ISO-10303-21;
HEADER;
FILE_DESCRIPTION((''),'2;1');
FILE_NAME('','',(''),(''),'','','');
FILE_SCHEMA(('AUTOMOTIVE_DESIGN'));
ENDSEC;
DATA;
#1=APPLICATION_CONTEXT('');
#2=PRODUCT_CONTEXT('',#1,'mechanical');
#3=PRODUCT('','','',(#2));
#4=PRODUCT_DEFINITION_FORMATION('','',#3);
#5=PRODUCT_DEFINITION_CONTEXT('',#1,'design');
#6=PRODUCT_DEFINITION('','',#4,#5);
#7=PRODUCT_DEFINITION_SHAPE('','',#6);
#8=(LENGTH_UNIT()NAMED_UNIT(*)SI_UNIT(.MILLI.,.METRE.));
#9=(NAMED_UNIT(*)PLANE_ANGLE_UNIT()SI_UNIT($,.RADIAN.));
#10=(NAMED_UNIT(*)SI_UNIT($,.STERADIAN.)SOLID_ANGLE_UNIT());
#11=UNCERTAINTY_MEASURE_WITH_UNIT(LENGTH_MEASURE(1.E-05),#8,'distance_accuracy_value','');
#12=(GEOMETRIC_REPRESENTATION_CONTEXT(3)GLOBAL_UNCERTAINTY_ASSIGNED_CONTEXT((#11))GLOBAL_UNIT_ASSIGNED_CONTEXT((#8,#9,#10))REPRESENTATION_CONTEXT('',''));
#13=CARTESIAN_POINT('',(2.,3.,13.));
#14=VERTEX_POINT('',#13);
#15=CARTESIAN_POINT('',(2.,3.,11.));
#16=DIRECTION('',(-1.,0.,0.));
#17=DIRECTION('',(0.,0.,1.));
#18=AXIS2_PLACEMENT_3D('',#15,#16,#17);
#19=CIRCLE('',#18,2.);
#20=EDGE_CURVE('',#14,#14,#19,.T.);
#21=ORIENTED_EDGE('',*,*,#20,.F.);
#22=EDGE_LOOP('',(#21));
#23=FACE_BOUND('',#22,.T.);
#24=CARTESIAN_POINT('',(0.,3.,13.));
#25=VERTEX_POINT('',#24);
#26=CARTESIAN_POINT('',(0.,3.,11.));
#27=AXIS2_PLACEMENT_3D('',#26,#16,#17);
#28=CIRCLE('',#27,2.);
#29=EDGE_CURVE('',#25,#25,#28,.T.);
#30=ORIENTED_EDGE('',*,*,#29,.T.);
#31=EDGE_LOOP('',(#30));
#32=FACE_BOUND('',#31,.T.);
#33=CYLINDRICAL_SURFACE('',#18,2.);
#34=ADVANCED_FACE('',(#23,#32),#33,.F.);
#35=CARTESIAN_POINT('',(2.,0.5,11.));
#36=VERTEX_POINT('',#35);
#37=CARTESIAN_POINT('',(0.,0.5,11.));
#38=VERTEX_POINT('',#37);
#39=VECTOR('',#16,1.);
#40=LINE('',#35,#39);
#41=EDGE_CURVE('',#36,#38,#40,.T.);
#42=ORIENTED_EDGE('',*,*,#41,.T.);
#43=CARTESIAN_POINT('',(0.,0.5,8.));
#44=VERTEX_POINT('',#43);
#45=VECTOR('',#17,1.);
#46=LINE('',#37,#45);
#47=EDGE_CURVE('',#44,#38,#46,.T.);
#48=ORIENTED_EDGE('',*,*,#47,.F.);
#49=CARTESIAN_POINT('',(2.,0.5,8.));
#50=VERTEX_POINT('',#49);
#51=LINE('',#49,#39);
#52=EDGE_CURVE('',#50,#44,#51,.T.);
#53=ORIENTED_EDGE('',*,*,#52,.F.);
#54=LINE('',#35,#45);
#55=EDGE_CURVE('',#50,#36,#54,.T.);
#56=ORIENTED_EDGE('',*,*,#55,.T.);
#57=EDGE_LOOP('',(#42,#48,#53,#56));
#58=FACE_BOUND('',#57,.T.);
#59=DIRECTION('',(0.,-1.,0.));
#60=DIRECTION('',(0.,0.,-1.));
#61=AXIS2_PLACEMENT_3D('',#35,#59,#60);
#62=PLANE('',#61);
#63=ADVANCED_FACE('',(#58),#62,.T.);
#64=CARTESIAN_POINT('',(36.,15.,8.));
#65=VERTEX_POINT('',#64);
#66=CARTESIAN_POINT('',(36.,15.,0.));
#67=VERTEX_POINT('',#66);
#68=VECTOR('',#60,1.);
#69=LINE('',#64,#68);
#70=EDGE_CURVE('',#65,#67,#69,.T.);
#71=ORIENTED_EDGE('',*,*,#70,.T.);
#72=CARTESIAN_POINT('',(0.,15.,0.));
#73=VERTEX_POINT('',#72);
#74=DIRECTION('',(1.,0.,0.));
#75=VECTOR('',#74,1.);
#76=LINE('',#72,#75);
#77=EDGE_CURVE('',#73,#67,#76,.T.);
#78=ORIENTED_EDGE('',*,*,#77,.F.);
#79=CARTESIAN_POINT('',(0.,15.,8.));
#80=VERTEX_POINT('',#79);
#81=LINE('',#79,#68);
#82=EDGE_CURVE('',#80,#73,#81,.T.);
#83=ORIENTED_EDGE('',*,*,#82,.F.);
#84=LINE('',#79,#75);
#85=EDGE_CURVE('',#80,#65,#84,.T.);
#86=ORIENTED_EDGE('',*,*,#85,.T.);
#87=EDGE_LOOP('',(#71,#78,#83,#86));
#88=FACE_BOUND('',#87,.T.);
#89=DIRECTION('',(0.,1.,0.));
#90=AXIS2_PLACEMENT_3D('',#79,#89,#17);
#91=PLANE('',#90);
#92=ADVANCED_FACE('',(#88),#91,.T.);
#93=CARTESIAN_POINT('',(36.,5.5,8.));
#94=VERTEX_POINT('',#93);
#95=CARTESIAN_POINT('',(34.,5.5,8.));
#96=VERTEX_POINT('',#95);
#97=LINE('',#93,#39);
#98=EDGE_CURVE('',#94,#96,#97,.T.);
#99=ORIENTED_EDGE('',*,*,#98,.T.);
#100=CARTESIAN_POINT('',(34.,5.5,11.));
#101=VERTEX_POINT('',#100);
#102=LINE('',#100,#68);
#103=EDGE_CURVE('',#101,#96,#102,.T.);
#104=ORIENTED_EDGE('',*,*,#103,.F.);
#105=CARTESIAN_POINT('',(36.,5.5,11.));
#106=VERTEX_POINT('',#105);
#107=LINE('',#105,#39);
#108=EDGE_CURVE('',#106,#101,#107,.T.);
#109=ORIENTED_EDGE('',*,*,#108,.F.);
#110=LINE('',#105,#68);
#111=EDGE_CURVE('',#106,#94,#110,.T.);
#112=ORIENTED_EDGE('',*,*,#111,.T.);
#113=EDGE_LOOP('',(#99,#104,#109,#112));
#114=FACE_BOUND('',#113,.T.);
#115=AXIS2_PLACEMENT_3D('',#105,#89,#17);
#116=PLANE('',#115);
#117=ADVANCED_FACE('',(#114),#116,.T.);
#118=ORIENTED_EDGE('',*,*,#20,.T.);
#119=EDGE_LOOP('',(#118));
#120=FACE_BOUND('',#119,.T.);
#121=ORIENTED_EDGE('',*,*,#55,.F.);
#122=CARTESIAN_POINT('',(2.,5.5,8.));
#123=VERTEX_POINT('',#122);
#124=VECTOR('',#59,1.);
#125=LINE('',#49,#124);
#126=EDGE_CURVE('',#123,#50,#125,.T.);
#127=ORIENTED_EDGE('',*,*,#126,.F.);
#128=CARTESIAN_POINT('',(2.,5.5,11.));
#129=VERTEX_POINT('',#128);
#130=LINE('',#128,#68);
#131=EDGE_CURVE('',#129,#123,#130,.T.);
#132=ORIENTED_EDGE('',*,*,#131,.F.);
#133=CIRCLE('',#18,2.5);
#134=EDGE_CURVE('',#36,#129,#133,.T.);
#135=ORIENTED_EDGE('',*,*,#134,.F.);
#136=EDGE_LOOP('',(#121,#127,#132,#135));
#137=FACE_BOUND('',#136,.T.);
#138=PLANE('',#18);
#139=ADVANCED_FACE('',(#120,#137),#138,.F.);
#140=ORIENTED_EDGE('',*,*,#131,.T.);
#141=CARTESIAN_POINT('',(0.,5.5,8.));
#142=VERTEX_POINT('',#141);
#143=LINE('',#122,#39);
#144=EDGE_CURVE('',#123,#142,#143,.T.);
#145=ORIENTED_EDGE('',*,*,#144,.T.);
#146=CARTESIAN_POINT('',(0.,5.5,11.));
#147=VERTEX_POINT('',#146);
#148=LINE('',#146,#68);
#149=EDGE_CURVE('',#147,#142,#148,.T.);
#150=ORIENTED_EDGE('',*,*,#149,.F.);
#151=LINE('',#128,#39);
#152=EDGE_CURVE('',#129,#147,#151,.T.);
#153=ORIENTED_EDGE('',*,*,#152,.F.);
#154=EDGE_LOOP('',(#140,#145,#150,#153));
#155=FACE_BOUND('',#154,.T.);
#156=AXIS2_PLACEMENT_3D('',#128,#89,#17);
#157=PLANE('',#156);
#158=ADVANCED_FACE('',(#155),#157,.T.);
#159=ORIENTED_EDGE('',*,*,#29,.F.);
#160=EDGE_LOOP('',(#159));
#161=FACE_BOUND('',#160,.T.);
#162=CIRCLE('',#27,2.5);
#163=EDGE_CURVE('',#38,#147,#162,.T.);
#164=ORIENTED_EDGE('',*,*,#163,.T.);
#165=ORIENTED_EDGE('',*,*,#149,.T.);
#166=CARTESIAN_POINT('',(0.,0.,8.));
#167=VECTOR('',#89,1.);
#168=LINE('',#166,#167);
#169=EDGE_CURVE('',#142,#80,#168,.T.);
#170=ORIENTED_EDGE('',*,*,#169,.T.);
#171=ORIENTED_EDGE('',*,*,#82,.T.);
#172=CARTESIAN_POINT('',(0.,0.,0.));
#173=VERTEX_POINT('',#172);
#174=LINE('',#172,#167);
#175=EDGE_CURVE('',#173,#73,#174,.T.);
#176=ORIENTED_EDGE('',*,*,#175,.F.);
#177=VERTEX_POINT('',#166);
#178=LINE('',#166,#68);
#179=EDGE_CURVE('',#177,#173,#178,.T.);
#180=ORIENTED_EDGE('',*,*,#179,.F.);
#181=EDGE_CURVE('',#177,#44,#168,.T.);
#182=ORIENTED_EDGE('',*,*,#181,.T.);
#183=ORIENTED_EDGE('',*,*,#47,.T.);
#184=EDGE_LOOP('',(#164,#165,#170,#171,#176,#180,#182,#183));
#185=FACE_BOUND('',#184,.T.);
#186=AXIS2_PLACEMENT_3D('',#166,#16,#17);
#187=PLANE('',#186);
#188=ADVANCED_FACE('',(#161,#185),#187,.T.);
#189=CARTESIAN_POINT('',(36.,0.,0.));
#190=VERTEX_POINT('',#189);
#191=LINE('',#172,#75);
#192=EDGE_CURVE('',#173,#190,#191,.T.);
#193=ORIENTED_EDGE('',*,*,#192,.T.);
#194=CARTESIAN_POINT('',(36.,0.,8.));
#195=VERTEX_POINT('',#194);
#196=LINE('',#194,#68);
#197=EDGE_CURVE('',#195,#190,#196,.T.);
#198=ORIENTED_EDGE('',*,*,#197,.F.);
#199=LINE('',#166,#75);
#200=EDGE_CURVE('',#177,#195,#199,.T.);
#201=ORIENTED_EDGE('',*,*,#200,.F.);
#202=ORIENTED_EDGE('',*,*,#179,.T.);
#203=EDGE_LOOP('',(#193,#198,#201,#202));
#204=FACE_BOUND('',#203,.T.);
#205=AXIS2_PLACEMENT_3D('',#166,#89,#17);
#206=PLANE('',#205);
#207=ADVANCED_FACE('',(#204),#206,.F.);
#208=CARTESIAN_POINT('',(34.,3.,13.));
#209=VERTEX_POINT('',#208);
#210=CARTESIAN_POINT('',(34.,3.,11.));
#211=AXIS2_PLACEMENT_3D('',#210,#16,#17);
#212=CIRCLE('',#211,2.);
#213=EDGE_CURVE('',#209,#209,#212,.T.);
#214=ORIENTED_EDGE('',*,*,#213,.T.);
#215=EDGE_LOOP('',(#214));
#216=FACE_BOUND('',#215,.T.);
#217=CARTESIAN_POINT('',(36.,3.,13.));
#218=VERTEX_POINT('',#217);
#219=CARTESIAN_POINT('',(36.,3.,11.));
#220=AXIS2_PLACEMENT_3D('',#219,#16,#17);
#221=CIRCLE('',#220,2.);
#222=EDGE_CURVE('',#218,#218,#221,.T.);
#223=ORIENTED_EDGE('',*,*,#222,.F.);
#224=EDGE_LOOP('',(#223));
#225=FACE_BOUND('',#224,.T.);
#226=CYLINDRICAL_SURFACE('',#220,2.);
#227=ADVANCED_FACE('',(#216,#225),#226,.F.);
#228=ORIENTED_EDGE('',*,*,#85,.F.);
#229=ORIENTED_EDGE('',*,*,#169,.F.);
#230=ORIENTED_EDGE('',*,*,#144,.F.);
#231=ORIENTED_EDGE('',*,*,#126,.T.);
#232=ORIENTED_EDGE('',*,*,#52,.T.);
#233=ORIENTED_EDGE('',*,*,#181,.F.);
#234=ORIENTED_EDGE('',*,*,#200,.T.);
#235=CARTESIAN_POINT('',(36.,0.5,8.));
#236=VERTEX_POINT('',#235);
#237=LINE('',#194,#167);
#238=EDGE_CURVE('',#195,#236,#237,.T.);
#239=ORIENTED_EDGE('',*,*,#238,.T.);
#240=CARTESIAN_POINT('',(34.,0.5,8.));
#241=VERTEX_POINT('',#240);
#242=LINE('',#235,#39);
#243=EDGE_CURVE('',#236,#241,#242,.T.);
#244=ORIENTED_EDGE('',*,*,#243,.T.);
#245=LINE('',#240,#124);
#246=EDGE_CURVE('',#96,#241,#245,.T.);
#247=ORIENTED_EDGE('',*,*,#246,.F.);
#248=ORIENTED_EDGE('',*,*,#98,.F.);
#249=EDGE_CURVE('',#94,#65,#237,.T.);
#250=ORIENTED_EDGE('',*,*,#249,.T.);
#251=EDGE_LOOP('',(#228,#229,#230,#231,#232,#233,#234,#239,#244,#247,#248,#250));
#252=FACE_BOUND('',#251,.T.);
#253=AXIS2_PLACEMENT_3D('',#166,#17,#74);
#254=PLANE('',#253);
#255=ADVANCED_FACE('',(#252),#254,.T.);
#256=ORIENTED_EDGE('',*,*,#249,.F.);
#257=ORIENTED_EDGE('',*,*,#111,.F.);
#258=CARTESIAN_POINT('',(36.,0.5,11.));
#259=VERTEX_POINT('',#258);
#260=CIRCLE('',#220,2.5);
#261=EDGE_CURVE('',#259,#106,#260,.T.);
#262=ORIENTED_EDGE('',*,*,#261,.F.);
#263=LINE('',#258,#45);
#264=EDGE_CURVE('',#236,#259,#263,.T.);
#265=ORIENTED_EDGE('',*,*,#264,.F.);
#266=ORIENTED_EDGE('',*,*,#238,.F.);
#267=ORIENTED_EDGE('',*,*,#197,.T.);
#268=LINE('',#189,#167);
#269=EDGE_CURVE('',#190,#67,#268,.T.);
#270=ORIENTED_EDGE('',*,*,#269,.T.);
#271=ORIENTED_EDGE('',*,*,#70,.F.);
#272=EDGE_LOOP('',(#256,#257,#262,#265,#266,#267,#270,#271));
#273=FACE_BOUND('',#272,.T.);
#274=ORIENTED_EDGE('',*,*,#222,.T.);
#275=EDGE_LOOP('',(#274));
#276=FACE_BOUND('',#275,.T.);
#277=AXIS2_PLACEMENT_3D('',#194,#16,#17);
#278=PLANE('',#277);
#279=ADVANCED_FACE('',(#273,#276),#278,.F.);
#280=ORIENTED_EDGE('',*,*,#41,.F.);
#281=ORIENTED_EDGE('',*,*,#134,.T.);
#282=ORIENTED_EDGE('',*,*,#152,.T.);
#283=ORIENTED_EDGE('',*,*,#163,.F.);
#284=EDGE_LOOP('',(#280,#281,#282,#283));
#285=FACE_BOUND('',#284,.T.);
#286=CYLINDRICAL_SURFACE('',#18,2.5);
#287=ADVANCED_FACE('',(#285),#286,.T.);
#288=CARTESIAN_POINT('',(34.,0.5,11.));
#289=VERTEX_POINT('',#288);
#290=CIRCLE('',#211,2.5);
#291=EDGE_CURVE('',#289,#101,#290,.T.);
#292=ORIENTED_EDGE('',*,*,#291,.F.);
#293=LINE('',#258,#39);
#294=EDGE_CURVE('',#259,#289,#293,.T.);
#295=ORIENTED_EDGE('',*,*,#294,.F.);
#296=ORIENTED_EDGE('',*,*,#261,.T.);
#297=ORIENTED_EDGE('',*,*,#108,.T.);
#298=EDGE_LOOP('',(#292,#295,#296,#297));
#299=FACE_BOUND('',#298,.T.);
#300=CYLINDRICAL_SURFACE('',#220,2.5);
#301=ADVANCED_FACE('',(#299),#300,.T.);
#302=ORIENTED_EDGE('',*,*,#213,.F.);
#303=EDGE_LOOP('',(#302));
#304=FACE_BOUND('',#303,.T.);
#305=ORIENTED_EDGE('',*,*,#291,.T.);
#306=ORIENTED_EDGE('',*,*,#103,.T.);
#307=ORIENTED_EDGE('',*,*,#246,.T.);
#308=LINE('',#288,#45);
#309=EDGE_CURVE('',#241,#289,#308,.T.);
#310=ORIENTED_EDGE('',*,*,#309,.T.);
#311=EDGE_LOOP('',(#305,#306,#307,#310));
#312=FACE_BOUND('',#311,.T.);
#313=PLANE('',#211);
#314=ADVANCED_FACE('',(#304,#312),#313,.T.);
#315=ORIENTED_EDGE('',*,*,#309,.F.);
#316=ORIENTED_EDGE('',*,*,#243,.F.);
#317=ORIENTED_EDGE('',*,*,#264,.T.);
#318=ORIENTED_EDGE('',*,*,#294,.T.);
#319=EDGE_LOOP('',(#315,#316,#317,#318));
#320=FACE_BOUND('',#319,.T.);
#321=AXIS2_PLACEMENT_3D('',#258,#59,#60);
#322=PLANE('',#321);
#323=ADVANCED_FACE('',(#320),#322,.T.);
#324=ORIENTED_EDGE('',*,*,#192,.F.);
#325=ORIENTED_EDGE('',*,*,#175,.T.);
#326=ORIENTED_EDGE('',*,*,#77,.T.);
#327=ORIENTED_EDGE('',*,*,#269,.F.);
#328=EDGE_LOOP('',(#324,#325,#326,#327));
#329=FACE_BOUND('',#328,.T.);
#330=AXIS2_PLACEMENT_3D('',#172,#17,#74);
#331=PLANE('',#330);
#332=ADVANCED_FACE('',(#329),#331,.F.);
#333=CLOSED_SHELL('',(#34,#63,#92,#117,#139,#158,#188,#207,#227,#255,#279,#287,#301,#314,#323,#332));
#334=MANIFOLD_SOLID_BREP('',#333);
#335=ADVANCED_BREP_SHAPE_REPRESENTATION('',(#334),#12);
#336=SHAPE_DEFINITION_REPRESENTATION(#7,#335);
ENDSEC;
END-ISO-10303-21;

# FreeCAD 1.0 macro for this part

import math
import FreeCAD as App
import Part
import Sketcher

V = App.Vector
Q = App.Units.Quantity


def add_polygon(sketch, points):
    """Adds a closed chain of lines whose ends are joined by coincident constraints."""
    first, n = sketch.GeometryCount, len(points)
    for a, b in zip(points, points[1:] + points[:1]):
        sketch.addGeometry(Part.LineSegment(App.Vector(*a, 0), App.Vector(*b, 0)), False)
    for i in range(n):
        sketch.addConstraint(Sketcher.Constraint("Coincident", first + i, 2, first + (i + 1) % n, 1))

doc = App.newDocument("Part")
body = doc.addObject("PartDesign::Body", "Body")

sketch1 = doc.addObject("Sketcher::SketchObject", "Sketch")
body.addObject(sketch1)
sketch1.AttachmentSupport = (doc.XY_Plane, [""])
sketch1.MapMode = "FlatFace"
add_polygon(sketch1, [(0, 15), (0, 0), (36, 0), (36, 15)])
sketch1.addConstraint(Sketcher.Constraint("Vertical", 0))
sketch1.addConstraint(Sketcher.Constraint("Horizontal", 1))
sketch1.addConstraint(Sketcher.Constraint("Vertical", 2))
sketch1.addConstraint(Sketcher.Constraint("Horizontal", 3))
sketch1.addConstraint(Sketcher.Constraint("Coincident", 0, 2, -1, 1))
sketch1.addConstraint(Sketcher.Constraint("DistanceX", 1, 1, 1, 2, Q("36 mm")))
sketch1.addConstraint(Sketcher.Constraint("DistanceY", 0, 2, 0, 1, Q("15 mm")))
pad1 = doc.addObject("PartDesign::Pad", "Pad")
body.addObject(pad1)
pad1.Profile = sketch1
pad1.Length = 8

sketch2 = doc.addObject("Sketcher::SketchObject", "Sketch001")
body.addObject(sketch2)
sketch2.AttachmentSupport = (doc.YZ_Plane, [""])
sketch2.MapMode = "FlatFace"
sketch2.addGeometry(Part.LineSegment(V(5.5, 11, 0), V(5.5, 8, 0)), False)
sketch2.addGeometry(Part.LineSegment(V(5.5, 8, 0), V(0.5, 8, 0)), False)
sketch2.addGeometry(Part.LineSegment(V(0.5, 8, 0), V(0.5, 11, 0)), False)
sketch2.addGeometry(Part.ArcOfCircle(Part.Circle(V(3, 11, 0), V(0, 0, 1), 2.5), math.radians(0), math.radians(180)), False)
sketch2.addGeometry(Part.Circle(V(3, 11, 0), V(0, 0, 1), 2), False)
sketch2.addConstraint(Sketcher.Constraint("Coincident", 0, 2, 1, 1))
sketch2.addConstraint(Sketcher.Constraint("Coincident", 1, 2, 2, 1))
sketch2.addConstraint(Sketcher.Constraint("Tangent", 2, 2, 3, 2))
sketch2.addConstraint(Sketcher.Constraint("Tangent", 3, 1, 0, 1))
sketch2.addConstraint(Sketcher.Constraint("Vertical", 0))
sketch2.addConstraint(Sketcher.Constraint("Horizontal", 1))
sketch2.addConstraint(Sketcher.Constraint("Vertical", 2))
sketch2.addConstraint(Sketcher.Constraint("Coincident", 4, 3, 3, 3))
sketch2.addConstraint(Sketcher.Constraint("Diameter", 4, Q("4 mm")))
sketch2.addConstraint(Sketcher.Constraint("Radius", 3, Q("2.5 mm")))
sketch2.addConstraint(Sketcher.Constraint("DistanceY", 0, 2, 0, 1, Q("3 mm")))
sketch2.addConstraint(Sketcher.Constraint("DistanceX", -1, 1, 3, 3, Q("3 mm")))
sketch2.addConstraint(Sketcher.Constraint("DistanceY", -1, 1, 3, 3, Q("11 mm")))
pad2 = doc.addObject("PartDesign::Pad", "Pad001")
body.addObject(pad2)
pad2.Profile = sketch2
pad2.Length = 2
doc.recompute()

linearpattern = doc.addObject("PartDesign::LinearPattern", "LinearPattern")
body.addObject(linearpattern)
linearpattern.Originals = [pad2]
linearpattern.Direction = (doc.X_Axis, [""])
linearpattern.Mode = "offset"
linearpattern.Offset = 34
linearpattern.Occurrences = 2
body.Tip = linearpattern

doc.recompute()
